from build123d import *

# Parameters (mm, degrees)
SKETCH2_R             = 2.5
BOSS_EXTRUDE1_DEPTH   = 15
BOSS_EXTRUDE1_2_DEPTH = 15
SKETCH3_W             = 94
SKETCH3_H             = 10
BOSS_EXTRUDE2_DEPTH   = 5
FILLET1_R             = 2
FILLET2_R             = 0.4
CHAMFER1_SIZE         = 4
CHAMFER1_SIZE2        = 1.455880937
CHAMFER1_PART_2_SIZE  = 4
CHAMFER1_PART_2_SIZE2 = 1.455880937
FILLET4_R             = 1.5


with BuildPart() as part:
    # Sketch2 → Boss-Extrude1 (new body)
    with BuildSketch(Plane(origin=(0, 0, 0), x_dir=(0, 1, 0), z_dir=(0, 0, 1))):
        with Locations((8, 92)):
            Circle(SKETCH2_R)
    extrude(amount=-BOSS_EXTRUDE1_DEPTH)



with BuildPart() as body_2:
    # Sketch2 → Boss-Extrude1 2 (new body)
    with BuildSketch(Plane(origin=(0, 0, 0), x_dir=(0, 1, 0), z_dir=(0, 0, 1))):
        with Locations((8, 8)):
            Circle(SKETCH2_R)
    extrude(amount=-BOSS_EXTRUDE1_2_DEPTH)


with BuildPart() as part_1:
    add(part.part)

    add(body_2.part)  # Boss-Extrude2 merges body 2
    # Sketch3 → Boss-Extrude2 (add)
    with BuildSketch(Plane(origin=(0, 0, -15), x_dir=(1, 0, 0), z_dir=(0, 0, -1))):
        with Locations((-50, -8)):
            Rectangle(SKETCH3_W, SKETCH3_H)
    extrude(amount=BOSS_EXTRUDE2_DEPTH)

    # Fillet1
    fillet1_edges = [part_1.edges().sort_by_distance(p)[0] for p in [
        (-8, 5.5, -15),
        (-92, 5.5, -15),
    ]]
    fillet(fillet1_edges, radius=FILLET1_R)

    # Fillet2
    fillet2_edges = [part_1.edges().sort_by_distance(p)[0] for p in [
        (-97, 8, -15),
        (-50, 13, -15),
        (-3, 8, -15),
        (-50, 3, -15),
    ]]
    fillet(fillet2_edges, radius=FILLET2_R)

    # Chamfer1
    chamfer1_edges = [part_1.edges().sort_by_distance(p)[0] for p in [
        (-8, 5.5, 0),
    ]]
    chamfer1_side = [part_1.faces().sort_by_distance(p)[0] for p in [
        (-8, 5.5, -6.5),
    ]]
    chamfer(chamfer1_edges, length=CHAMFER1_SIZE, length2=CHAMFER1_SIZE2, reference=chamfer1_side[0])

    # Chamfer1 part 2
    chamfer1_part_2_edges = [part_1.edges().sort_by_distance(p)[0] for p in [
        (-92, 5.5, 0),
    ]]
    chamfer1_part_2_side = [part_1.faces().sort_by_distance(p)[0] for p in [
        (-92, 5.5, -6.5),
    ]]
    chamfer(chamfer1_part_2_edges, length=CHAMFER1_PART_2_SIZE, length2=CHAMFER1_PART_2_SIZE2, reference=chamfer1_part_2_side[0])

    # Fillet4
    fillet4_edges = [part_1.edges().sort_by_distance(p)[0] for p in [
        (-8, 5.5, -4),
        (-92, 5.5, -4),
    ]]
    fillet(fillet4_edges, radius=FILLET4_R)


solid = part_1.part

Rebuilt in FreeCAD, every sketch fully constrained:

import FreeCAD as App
import Part
import Sketcher

V = App.Vector
Q = App.Units.Quantity


def edges_at(feature, points):
    """Names of the edges that pass closest to the given points."""
    edges = feature.Shape.Edges
    near = lambda p: min(range(len(edges)), key=lambda i: edges[i].distToShape(Part.Vertex(*p))[0])
    return sorted({f"Edge{near(p) + 1}" for p in points})

doc = App.newDocument("Part")
body = doc.addObject("PartDesign::Body", "Body")

# Sketch on XY plane
sketch1 = doc.addObject("Sketcher::SketchObject", "Sketch")
body.addObject(sketch1)
sketch1.AttachmentSupport = (doc.XY_Plane, [""])
sketch1.MapMode = "FlatFace"
sketch1.addGeometry(Part.Circle(V(-92, 8, 0), V(0, 0, 1), 2.5), False)
sketch1.addConstraint(Sketcher.Constraint("Diameter", 0, Q("5 mm")))
sketch1.addConstraint(Sketcher.Constraint("DistanceX", 0, 3, -1, 1, Q("92 mm")))
sketch1.addConstraint(Sketcher.Constraint("DistanceY", -1, 1, 0, 3, Q("8 mm")))
pad1 = doc.addObject("PartDesign::Pad", "Pad")
body.addObject(pad1)
pad1.Profile = sketch1
pad1.Length = 15
pad1.Reversed = True
body2 = doc.addObject("PartDesign::Body", "Body001")

# Sketch on XY plane
sketch2 = doc.addObject("Sketcher::SketchObject", "Sketch001")
body2.addObject(sketch2)
sketch2.AttachmentSupport = (doc.getObject("XY_Plane001"), [""])
sketch2.MapMode = "FlatFace"
sketch2.addGeometry(Part.Circle(V(-8, 8, 0), V(0, 0, 1), 2.5), False)
sketch2.addConstraint(Sketcher.Constraint("Diameter", 0, Q("5 mm")))
sketch2.addConstraint(Sketcher.Constraint("DistanceX", 0, 3, -1, 1, Q("8 mm")))
sketch2.addConstraint(Sketcher.Constraint("DistanceY", -1, 1, 0, 3, Q("8 mm")))
pad2 = doc.addObject("PartDesign::Pad", "Pad001")
body2.addObject(pad2)
pad2.Profile = sketch2
pad2.Length = 15
pad2.Reversed = True
body.AllowCompound = True
doc.recompute()

boolean = doc.addObject("PartDesign::Boolean", "Boolean")
body.addObject(boolean)
boolean.Type = "Fuse"
boolean.addObjects([body2])

# Sketch on XY plane
sketch3 = doc.addObject("Sketcher::SketchObject", "Sketch002")
body.addObject(sketch3)
sketch3.AttachmentSupport = (doc.XY_Plane, [""])
sketch3.MapMode = "FlatFace"
sketch3.AttachmentOffset = App.Placement(V(0, 0, -15), App.Rotation())
sketch3.addGeometry(Part.LineSegment(V(-97, 3, 0), V(-97, 13, 0)), False)
sketch3.addGeometry(Part.LineSegment(V(-97, 13, 0), V(-3, 13, 0)), False)
sketch3.addGeometry(Part.LineSegment(V(-3, 13, 0), V(-3, 3, 0)), False)
sketch3.addGeometry(Part.LineSegment(V(-3, 3, 0), V(-97, 3, 0)), False)
sketch3.addConstraint(Sketcher.Constraint("Coincident", 0, 2, 1, 1))
sketch3.addConstraint(Sketcher.Constraint("Coincident", 1, 2, 2, 1))
sketch3.addConstraint(Sketcher.Constraint("Coincident", 2, 2, 3, 1))
sketch3.addConstraint(Sketcher.Constraint("Coincident", 3, 2, 0, 1))
sketch3.addConstraint(Sketcher.Constraint("Vertical", 0))
sketch3.addConstraint(Sketcher.Constraint("Horizontal", 1))
sketch3.addConstraint(Sketcher.Constraint("Vertical", 2))
sketch3.addConstraint(Sketcher.Constraint("Horizontal", 3))
sketch3.addConstraint(Sketcher.Constraint("DistanceX", 1, 1, 1, 2, Q("94 mm")))
sketch3.addConstraint(Sketcher.Constraint("DistanceY", 0, 1, 0, 2, Q("10 mm")))
sketch3.addConstraint(Sketcher.Constraint("DistanceX", 0, 2, -1, 1, Q("97 mm")))
sketch3.addConstraint(Sketcher.Constraint("DistanceY", -1, 1, 0, 2, Q("13 mm")))
pad3 = doc.addObject("PartDesign::Pad", "Pad002")
body.addObject(pad3)
pad3.Profile = sketch3
pad3.Length = 5
pad3.Reversed = True
doc.recompute()

fillet = doc.addObject("PartDesign::Fillet", "Fillet")
body.addObject(fillet)
fillet.Base = (pad3, edges_at(pad3, [(-8, 5.5, -15), (-92, 5.5, -15)]))
fillet.Radius = 2
doc.recompute()

fillet2 = doc.addObject("PartDesign::Fillet", "Fillet001")
body.addObject(fillet2)
fillet2.Base = (fillet, edges_at(fillet, [
    (-97, 8, -15),
    (-50, 13, -15),
    (-3, 8, -15),
    (-50, 3, -15),
]))
fillet2.Radius = 0.4
doc.recompute()

chamfer = doc.addObject("PartDesign::Chamfer", "Chamfer")
body.addObject(chamfer)
chamfer.Base = (fillet2, edges_at(fillet2, [(-8, 5.5, 0)]))
chamfer.ChamferType = "Two distances"
chamfer.Size = 4
chamfer.Size2 = 1.455881
doc.recompute()

chamfer2 = doc.addObject("PartDesign::Chamfer", "Chamfer001")
body.addObject(chamfer2)
chamfer2.Base = (chamfer, edges_at(chamfer, [(-92, 5.5, 0)]))
chamfer2.ChamferType = "Two distances"
chamfer2.Size = 4
chamfer2.Size2 = 1.455881
doc.recompute()

fillet3 = doc.addObject("PartDesign::Fillet", "Fillet002")
body.addObject(fillet3)
fillet3.Base = (chamfer2, edges_at(chamfer2, [(-8, 5.5, -4), (-92, 5.5, -4)]))
fillet3.Radius = 1.5

doc.recompute()
